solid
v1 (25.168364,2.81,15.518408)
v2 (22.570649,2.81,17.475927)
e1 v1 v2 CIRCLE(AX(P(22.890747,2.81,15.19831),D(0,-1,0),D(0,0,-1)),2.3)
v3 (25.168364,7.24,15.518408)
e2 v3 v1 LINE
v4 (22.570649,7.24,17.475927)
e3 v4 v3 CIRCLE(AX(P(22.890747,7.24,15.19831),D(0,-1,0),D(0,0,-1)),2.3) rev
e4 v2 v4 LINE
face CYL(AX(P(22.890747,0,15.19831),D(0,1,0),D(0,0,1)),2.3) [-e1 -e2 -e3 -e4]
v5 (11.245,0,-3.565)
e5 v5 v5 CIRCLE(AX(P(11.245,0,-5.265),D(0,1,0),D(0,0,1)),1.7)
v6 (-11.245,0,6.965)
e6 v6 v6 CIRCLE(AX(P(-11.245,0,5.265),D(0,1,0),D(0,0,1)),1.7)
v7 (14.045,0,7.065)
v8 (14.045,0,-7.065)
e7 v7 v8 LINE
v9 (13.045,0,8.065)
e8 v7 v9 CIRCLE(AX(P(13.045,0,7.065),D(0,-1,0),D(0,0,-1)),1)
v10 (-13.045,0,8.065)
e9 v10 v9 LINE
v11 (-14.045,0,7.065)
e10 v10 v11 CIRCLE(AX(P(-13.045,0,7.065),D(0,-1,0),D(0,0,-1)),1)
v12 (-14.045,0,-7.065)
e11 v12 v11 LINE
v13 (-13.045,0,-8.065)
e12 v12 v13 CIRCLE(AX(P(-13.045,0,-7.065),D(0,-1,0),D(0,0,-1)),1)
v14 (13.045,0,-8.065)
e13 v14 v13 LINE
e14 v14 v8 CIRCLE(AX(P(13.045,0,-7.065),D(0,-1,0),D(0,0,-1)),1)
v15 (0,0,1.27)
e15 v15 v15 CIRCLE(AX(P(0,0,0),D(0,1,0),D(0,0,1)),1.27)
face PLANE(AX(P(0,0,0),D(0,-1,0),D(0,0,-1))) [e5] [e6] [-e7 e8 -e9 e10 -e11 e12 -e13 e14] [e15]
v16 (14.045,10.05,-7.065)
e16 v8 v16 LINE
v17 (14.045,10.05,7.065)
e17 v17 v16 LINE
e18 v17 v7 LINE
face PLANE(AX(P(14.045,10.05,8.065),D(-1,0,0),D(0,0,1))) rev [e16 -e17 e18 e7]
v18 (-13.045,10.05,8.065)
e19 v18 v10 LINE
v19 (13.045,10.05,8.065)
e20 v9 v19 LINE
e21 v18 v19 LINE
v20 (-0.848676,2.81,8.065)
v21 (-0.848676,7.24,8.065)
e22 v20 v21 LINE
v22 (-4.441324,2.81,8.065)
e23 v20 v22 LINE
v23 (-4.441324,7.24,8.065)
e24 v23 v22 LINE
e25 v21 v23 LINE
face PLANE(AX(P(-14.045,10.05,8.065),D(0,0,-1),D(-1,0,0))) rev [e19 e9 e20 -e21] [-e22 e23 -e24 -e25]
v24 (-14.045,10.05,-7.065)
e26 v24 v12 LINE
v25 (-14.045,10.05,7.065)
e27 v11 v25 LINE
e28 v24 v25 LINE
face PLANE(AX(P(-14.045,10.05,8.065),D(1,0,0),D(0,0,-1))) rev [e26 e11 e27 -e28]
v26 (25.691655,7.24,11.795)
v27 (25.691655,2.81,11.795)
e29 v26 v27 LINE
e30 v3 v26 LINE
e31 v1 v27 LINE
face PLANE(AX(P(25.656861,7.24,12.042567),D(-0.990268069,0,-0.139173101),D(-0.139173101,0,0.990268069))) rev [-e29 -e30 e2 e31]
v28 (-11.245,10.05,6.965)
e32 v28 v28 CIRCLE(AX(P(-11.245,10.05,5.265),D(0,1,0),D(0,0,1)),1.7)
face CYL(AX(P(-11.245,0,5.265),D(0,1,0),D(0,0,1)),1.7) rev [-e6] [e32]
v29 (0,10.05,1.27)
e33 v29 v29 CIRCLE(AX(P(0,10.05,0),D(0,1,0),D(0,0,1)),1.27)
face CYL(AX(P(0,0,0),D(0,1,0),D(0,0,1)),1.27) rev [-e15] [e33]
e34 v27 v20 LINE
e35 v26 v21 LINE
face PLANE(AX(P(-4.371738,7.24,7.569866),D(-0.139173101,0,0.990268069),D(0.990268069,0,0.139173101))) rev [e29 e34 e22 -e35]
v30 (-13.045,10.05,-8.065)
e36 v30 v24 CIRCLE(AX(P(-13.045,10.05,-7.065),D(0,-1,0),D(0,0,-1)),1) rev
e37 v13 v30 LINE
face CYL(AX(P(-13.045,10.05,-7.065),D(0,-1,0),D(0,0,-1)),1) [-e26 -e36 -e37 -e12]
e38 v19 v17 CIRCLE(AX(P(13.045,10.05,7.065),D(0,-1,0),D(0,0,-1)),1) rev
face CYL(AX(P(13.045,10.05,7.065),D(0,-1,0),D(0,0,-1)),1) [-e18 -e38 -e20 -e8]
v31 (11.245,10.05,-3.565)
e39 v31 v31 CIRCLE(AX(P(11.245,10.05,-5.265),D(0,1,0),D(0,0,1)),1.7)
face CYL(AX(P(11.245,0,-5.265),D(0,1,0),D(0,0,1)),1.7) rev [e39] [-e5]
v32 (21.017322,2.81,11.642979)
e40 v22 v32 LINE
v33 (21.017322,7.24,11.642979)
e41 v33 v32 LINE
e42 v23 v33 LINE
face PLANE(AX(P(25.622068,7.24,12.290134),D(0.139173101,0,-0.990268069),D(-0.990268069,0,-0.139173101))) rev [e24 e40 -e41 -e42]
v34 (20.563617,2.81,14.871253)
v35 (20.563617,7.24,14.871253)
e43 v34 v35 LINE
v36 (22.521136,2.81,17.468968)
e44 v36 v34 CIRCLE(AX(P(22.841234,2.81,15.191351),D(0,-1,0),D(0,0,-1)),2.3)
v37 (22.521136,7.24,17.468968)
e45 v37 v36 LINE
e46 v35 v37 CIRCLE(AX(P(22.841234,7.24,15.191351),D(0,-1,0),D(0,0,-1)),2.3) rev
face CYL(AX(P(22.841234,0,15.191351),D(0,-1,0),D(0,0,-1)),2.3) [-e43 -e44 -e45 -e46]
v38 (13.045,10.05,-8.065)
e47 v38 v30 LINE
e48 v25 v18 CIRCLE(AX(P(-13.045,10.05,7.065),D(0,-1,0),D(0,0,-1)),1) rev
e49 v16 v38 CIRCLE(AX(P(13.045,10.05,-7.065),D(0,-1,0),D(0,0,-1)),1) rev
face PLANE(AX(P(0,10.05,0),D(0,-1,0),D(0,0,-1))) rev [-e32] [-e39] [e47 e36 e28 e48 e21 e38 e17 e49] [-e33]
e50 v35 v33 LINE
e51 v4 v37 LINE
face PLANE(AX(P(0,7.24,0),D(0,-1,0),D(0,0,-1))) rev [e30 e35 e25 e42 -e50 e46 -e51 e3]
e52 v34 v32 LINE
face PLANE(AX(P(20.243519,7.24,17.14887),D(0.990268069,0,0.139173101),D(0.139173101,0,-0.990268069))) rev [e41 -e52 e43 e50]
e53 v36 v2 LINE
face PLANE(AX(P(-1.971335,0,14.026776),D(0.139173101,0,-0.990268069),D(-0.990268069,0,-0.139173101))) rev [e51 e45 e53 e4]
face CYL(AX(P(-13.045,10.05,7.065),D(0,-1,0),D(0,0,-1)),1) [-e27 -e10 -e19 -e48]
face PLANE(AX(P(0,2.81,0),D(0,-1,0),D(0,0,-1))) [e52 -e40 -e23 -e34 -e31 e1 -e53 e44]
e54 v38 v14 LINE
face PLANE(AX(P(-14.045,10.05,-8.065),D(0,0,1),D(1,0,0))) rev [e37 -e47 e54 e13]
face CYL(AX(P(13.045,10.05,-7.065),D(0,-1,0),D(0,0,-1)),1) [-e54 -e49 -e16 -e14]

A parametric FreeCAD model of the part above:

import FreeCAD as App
import Part
import Sketcher
Q = App.Units.Quantity


def edges_at(feature, points):
    """Names of the edges that pass closest to the given points."""
    edges = feature.Shape.Edges
    near = lambda p: min(range(len(edges)), key=lambda i: edges[i].distToShape(Part.Vertex(*p))[0])
    return sorted({f"Edge{near(p) + 1}" for p in points})


def add_polygon(sketch, points):
    """Adds a closed chain of lines whose ends are joined by coincident constraints."""
    first, n = sketch.GeometryCount, len(points)
    for a, b in zip(points, points[1:] + points[:1]):
        sketch.addGeometry(Part.LineSegment(App.Vector(*a, 0), App.Vector(*b, 0)), False)
    for i in range(n):
        sketch.addConstraint(Sketcher.Constraint("Coincident", first + i, 2, first + (i + 1) % n, 1))

doc = App.newDocument("Part")
body = doc.addObject("PartDesign::Body", "Body")

# Sketch on XZ plane
sketch1 = body.newObject("Sketcher::SketchObject", "Sketch")
sketch1.AttachmentSupport = (doc.getObject("XZ_Plane"), [""])
sketch1.MapMode = "FlatFace"
add_polygon(sketch1, [(-14.045, -8.065), (-14.045, 8.065), (14.045, 8.065), (14.045, -8.065)])  # lines 0-3
sketch1.addConstraint(Sketcher.Constraint("Vertical", 0))
sketch1.addConstraint(Sketcher.Constraint("Horizontal", 1))
sketch1.addConstraint(Sketcher.Constraint("Vertical", 2))
sketch1.addConstraint(Sketcher.Constraint("Horizontal", 3))
sketch1.addConstraint(Sketcher.Constraint("Symmetric", 0, 2, 2, 2, -1, 1))
sketch1.addConstraint(Sketcher.Constraint("DistanceX", 1, 1, 1, 2, Q("28.09 mm")))
sketch1.addConstraint(Sketcher.Constraint("DistanceY", 0, 1, 0, 2, Q("16.13 mm")))
pad1 = body.newObject("PartDesign::Pad", "Pad")
pad1.Profile = sketch1
pad1.Length = 10.05
pad1.Reversed = True

# Sketch on XZ plane
sketch2 = body.newObject("Sketcher::SketchObject", "Sketch001")
sketch2.AttachmentSupport = (doc.getObject("XZ_Plane"), [""])
sketch2.MapMode = "FlatFace"
sketch2.AttachmentOffset = App.Placement(App.Vector(0, 0, -5.025), App.Rotation())
add_polygon(sketch2, [(25.622068, 12.290134), (25.656861, 12.042567), (25.691655, 11.795), (-4.371738, 7.569866), (-4.441324, 8.065)])  # lines 0-4
sketch2.addConstraint(Sketcher.Constraint("Parallel", 0, 1))
sketch2.addConstraint(Sketcher.Constraint("Perpendicular", 1, 2))
sketch2.addConstraint(Sketcher.Constraint("Perpendicular", 2, 3))
sketch2.addConstraint(Sketcher.Constraint("Perpendicular", 3, 4))
sketch2.addConstraint(Sketcher.Constraint("Equal", 0, 1))
sketch2.addConstraint(Sketcher.Constraint("Angle", 0, Q("-82 deg")))
sketch2.addConstraint(Sketcher.Constraint("Distance", 3, Q("0.5 mm")))
sketch2.addConstraint(Sketcher.Constraint("DistanceY", 3, 2, 1, 2, Q("3.73 mm")))
sketch2.addConstraint(Sketcher.Constraint("DistanceY", -1, 1, 1, 2, Q("11.795 mm")))
sketch2.addConstraint(Sketcher.Constraint("DistanceX", -1, 1, 0, 2, Q("25.656861 mm")))
pad2 = body.newObject("PartDesign::Pad", "Pad001")
pad2.Profile = sketch2
pad2.Length = 4.43
pad2.Midplane = True
doc.recompute()

fillet = body.newObject("PartDesign::Fillet", "Fillet")
fillet.Base = (pad2, edges_at(pad2, [
    (14.045, 5.025, 8.065),
    (-14.045, 5.025, 8.065),
    (-14.045, 5.025, -8.065),
    (14.045, 5.025, -8.065),
]))
fillet.Radius = 1

# Sketch on XZ plane
sketch3 = body.newObject("Sketcher::SketchObject", "Sketch002")
sketch3.AttachmentSupport = (doc.getObject("XZ_Plane"), [""])
sketch3.MapMode = "FlatFace"
sketch3.AttachmentOffset = App.Placement(App.Vector(0, 0, -5.025), App.Rotation())
sketch3.addGeometry(Part.Circle(App.Vector(11.245, -5.265, 0), App.Vector(0, 0, 1), 1.7), False)
sketch3.addGeometry(Part.Circle(App.Vector(-11.245, 5.265, 0), App.Vector(0, 0, 1), 1.7), False)
sketch3.addGeometry(Part.Circle(App.Vector(0, 0, 0), App.Vector(0, 0, 1), 1.27), False)
sketch3.addConstraint(Sketcher.Constraint("Coincident", 2, 3, -1, 1))
sketch3.addConstraint(Sketcher.Constraint("Equal", 0, 1))
sketch3.addConstraint(Sketcher.Constraint("Symmetric", 0, 3, 1, 3, -1, 1))
sketch3.addConstraint(Sketcher.Constraint("Diameter", 0, Q("3.4 mm")))
sketch3.addConstraint(Sketcher.Constraint("Diameter", 2, Q("2.54 mm")))
sketch3.addConstraint(Sketcher.Constraint("DistanceX", 1, 3, 0, 3, Q("22.49 mm")))
sketch3.addConstraint(Sketcher.Constraint("DistanceY", 0, 3, 1, 3, Q("10.53 mm")))
pocket1 = body.newObject("PartDesign::Pocket", "Pocket")
pocket1.Profile = sketch3
pocket1.Type = "ThroughAll"
pocket1.Midplane = True

# Sketch on an angled plane
sketch4 = body.newObject("Sketcher::SketchObject", "Sketch003")
sketch4.Placement = App.Placement(App.Vector(-1.197532, 0, 8.520885), App.Rotation(App.Vector(0.990268069, 0, 0.139173101), App.Vector(0, 1.000000001, 0), App.Vector(-0.139173101, 0, 0.990268069), "ZXY"))
add_polygon(sketch4, [(22.433172, 7.24), (22.433172, 2.81), (27.083172, 2.81), (27.083172, 7.24)])  # lines 0-3
sketch4.addConstraint(Sketcher.Constraint("Vertical", 0))
sketch4.addConstraint(Sketcher.Constraint("Horizontal", 1))
sketch4.addConstraint(Sketcher.Constraint("Vertical", 2))
sketch4.addConstraint(Sketcher.Constraint("Horizontal", 3))
sketch4.addConstraint(Sketcher.Constraint("DistanceX", 1, 1, 1, 2, Q("4.65 mm")))
sketch4.addConstraint(Sketcher.Constraint("DistanceY", 0, 2, 0, 1, Q("4.43 mm")))
sketch4.addConstraint(Sketcher.Constraint("DistanceY", -1, 1, 0, 2, Q("2.81 mm")))
sketch4.addConstraint(Sketcher.Constraint("DistanceX", -1, 1, 0, 2, Q("22.433172 mm")))
pad3 = body.newObject("PartDesign::Pad", "Pad002")
pad3.Profile = sketch4
pad3.Length = 5.56
doc.recompute()

fillet2 = body.newObject("PartDesign::Fillet", "Fillet001")
fillet2.Base = (pad3, edges_at(pad3, [(24.848, 5.025, 17.796), (20.244, 5.025, 17.149)]))
fillet2.Radius = 2.3

doc.recompute()
